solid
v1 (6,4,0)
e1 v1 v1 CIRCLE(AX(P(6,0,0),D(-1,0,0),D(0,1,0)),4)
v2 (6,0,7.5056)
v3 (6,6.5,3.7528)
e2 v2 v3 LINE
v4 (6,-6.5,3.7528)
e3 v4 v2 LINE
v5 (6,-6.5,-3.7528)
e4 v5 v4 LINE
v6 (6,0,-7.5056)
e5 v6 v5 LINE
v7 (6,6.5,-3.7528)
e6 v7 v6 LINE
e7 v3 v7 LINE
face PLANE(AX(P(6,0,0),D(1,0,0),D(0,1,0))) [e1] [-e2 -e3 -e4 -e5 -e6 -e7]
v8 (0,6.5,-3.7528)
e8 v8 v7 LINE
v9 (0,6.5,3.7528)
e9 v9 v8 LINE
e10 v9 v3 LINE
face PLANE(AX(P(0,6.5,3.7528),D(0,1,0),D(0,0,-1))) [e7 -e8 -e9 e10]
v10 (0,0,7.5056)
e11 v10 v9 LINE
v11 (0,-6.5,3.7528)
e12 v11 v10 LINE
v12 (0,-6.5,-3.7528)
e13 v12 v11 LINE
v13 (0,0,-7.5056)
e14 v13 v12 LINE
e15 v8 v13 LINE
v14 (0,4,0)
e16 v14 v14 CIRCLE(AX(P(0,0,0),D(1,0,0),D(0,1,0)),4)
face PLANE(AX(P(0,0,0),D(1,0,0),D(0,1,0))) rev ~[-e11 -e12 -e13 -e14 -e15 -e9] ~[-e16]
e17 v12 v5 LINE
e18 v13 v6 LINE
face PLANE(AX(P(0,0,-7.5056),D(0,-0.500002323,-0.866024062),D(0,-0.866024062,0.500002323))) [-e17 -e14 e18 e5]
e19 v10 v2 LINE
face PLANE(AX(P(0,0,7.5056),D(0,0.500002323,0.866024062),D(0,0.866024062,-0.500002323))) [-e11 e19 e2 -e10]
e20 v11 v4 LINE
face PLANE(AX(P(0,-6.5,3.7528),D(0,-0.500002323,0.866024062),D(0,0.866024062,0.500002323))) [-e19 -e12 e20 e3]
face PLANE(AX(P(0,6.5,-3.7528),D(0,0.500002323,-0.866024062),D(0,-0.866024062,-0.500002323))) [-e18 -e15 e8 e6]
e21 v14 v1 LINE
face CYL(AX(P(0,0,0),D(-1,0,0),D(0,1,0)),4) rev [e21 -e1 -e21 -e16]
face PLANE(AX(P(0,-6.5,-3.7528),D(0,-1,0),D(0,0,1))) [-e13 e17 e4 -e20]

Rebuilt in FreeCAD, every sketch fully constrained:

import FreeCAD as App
import Part
import Sketcher
Q = App.Units.Quantity

doc = App.newDocument("Part")
body = doc.addObject("PartDesign::Body", "Body")

# Sketch on YZ plane
sketch1 = body.newObject("Sketcher::SketchObject", "Sketch")
sketch1.AttachmentSupport = (doc.getObject("YZ_Plane"), [""])
sketch1.MapMode = "FlatFace"
sketch1.addGeometry(Part.LineSegment(App.Vector(0, -7.5, 0), App.Vector(6.5, -3.8, 0)), False)
sketch1.addGeometry(Part.LineSegment(App.Vector(6.5, -3.8, 0), App.Vector(6.5, 3.8, 0)), False)
sketch1.addGeometry(Part.LineSegment(App.Vector(6.5, 3.8, 0), App.Vector(0, 7.5, 0)), False)
sketch1.addGeometry(Part.LineSegment(App.Vector(0, 7.5, 0), App.Vector(-6.5, 3.8, 0)), False)
sketch1.addGeometry(Part.LineSegment(App.Vector(-6.5, 3.8, 0), App.Vector(-6.5, -3.8, 0)), False)
sketch1.addGeometry(Part.LineSegment(App.Vector(-6.5, -3.8, 0), App.Vector(0, -7.5, 0)), False)
sketch1.addGeometry(Part.Circle(App.Vector(0, 0, 0), App.Vector(0, 0, 1), 4), False)
sketch1.addConstraint(Sketcher.Constraint("Coincident", 0, 2, 1, 1))
sketch1.addConstraint(Sketcher.Constraint("Coincident", 1, 2, 2, 1))
sketch1.addConstraint(Sketcher.Constraint("Coincident", 2, 2, 3, 1))
sketch1.addConstraint(Sketcher.Constraint("Coincident", 3, 2, 4, 1))
sketch1.addConstraint(Sketcher.Constraint("Coincident", 4, 2, 5, 1))
sketch1.addConstraint(Sketcher.Constraint("Coincident", 5, 2, 0, 1))
sketch1.addConstraint(Sketcher.Constraint("Vertical", 1))
sketch1.addConstraint(Sketcher.Constraint("Vertical", 4))
sketch1.addConstraint(Sketcher.Constraint("Coincident", 6, 3, -1, 1))
sketch1.addConstraint(Sketcher.Constraint("Symmetric", 0, 2, 3, 2, -1, 1))
sketch1.addConstraint(Sketcher.Constraint("Symmetric", 2, 2, 5, 2, -1, 1))
sketch1.addConstraint(Sketcher.Constraint("PointOnObject", 2, 2, -2))
sketch1.addConstraint(Sketcher.Constraint("Parallel", 2, 5))
sketch1.addConstraint(Sketcher.Constraint("Horizontal", 1, 2, 3, 2))
sketch1.addConstraint(Sketcher.Constraint("Diameter", 6, 8.0))
sketch1.addConstraint(Sketcher.Constraint("DistanceX", -1, 1, 0, 2, 6.5))
sketch1.addConstraint(Sketcher.Constraint("Angle", 0, Q("30.0002 deg")))
sketch1.addConstraint(Sketcher.Constraint("DistanceY", 1, 1, 1, 2, 7.5056))
pad1 = body.newObject("PartDesign::Pad", "Pad")
pad1.Profile = sketch1
pad1.Length = 6

doc.recompute()
